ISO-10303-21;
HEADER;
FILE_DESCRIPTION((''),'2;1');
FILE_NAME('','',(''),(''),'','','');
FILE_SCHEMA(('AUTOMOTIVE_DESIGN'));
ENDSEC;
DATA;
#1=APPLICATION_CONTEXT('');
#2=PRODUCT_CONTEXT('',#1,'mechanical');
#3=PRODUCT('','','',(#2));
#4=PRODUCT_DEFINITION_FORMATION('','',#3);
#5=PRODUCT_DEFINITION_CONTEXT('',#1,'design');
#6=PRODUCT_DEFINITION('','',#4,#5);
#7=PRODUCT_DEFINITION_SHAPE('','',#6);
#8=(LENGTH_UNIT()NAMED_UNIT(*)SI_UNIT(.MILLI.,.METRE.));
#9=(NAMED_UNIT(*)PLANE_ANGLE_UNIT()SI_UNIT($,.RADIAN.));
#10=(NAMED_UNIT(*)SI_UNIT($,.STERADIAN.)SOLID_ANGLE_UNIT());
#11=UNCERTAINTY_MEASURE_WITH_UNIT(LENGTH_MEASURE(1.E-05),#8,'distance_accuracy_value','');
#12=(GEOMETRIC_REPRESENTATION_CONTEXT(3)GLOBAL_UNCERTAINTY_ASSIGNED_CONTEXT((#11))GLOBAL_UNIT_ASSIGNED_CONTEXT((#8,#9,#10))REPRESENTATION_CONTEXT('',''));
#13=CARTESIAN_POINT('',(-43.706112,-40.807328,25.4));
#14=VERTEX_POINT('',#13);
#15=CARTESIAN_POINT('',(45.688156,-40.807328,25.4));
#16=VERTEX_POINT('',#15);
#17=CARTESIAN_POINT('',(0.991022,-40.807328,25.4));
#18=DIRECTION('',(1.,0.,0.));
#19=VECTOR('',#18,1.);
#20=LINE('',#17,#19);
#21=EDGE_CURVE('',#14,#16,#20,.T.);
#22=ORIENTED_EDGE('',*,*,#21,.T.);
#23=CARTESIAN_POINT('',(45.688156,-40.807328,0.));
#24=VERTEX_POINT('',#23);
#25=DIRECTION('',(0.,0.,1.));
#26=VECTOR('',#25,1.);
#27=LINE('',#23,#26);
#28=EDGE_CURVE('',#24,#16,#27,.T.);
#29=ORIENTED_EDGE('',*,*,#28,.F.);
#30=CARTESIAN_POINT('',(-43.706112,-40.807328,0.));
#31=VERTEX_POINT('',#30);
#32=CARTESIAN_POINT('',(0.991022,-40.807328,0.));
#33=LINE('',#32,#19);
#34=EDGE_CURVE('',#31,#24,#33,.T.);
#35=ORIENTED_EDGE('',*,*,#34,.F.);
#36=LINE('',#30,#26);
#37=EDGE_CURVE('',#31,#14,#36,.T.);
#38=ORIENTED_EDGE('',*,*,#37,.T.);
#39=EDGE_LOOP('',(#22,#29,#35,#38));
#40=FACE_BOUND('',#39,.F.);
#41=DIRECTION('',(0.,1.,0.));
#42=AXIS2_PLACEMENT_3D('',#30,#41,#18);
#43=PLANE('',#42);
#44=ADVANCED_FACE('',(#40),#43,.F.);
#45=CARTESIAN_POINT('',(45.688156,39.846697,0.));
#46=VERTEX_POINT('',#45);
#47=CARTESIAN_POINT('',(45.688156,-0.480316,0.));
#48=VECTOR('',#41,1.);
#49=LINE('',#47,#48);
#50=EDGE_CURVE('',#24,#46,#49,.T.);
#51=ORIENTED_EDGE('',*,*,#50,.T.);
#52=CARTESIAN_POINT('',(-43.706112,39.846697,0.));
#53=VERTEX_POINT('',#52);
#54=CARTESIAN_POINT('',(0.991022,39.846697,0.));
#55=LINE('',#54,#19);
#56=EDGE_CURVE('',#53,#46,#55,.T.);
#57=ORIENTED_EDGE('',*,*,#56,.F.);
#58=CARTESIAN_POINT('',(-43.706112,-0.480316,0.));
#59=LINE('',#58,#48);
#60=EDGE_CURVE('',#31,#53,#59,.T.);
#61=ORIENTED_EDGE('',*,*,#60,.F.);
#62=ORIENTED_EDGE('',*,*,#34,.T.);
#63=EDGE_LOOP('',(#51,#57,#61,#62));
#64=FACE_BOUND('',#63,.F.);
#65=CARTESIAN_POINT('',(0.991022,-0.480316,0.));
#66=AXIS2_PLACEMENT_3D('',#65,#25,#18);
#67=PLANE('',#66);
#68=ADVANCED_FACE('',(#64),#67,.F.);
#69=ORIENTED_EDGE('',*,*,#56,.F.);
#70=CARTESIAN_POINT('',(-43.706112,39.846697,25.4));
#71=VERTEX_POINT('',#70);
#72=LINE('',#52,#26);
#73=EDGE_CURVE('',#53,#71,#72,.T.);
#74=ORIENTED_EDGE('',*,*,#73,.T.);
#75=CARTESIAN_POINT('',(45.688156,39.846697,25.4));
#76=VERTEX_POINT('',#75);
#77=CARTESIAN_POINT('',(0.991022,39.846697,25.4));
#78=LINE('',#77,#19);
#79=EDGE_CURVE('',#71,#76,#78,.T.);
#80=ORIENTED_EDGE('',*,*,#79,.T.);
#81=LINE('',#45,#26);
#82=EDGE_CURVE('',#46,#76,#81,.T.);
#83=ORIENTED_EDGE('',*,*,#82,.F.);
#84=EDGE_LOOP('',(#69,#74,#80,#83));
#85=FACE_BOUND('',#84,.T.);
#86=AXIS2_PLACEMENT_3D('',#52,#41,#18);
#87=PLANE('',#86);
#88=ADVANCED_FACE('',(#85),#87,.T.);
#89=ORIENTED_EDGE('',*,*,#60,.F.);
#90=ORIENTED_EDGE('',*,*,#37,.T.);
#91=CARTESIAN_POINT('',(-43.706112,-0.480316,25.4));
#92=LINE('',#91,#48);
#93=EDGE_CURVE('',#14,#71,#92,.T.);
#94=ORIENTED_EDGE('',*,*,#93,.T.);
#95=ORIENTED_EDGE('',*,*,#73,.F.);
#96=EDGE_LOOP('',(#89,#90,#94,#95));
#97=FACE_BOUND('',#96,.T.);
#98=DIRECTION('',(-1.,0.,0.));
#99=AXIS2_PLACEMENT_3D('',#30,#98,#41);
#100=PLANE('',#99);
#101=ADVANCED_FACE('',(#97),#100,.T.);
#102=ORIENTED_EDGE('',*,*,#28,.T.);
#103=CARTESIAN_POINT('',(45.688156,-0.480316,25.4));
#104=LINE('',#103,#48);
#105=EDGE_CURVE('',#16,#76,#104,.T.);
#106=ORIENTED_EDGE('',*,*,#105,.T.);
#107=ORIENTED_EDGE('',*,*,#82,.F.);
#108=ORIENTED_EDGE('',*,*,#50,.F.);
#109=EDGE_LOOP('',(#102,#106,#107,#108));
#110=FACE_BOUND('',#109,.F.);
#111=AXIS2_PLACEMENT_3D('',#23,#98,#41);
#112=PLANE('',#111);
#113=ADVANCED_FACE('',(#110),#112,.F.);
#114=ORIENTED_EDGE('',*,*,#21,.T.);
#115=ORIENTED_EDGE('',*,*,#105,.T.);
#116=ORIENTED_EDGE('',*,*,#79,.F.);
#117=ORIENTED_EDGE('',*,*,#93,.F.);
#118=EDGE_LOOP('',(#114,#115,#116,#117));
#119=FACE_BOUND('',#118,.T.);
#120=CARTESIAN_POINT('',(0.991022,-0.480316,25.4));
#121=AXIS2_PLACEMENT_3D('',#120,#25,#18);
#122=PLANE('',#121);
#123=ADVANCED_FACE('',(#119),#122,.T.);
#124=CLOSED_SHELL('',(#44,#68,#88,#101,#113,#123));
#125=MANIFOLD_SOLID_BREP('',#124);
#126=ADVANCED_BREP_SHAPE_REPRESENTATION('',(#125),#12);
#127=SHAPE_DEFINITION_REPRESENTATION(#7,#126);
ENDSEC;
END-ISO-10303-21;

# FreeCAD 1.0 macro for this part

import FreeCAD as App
import Part
import Sketcher

V = App.Vector
Q = App.Units.Quantity


def add_polygon(sketch, points):
    """Adds a closed chain of lines whose ends are joined by coincident constraints."""
    first, n = sketch.GeometryCount, len(points)
    for a, b in zip(points, points[1:] + points[:1]):
        sketch.addGeometry(Part.LineSegment(App.Vector(*a, 0), App.Vector(*b, 0)), False)
    for i in range(n):
        sketch.addConstraint(Sketcher.Constraint("Coincident", first + i, 2, first + (i + 1) % n, 1))

doc = App.newDocument("Part")
body = doc.addObject("PartDesign::Body", "Body")

# Sketch on XY plane
sketch1 = body.newObject("Sketcher::SketchObject", "Sketch")
sketch1.AttachmentSupport = (doc.getObject("XY_Plane"), [""])
sketch1.MapMode = "FlatFace"
add_polygon(sketch1, [(-44, 40), (-44, -41), (46, -41), (46, 40)])  # lines 0-3
sketch1.addConstraint([
    Sketcher.Constraint("Vertical", 0),
    Sketcher.Constraint("Horizontal", 1),
    Sketcher.Constraint("Vertical", 2),
    Sketcher.Constraint("Horizontal", 3),
    Sketcher.Constraint("DistanceX", 1, 1, 1, 2, 89.394268),
    Sketcher.Constraint("DistanceY", 0, 2, 0, 1, 80.654025),
    Sketcher.Constraint("DistanceX", 0, 2, -1, 1, 43.706112),
    Sketcher.Constraint("DistanceY", 0, 2, -1, 1, 40.807328),
])
pad1 = body.newObject("PartDesign::Pad", "Pad")
pad1.Profile = sketch1
pad1.Length = Q("1 in")

doc.recompute()
